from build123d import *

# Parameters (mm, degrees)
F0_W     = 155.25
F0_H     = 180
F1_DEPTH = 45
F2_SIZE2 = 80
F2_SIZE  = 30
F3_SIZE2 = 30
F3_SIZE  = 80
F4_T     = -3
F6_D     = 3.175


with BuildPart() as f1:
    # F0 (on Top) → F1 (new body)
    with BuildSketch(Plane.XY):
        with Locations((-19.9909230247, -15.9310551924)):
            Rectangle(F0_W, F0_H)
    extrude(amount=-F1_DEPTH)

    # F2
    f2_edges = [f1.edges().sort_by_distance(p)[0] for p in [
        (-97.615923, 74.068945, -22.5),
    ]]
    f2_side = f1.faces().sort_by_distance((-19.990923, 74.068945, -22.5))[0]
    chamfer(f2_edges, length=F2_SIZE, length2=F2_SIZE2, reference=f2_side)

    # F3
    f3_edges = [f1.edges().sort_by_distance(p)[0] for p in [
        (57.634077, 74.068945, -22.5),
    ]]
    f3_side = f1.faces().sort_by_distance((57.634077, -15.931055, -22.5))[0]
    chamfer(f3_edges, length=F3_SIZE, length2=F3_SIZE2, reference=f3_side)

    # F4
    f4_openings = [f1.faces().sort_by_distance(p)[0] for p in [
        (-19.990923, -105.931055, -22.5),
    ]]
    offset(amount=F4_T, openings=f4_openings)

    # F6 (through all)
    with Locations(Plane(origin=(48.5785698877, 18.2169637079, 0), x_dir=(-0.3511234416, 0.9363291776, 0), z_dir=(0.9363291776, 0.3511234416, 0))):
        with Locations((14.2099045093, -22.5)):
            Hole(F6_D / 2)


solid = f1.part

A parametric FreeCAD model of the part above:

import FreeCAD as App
import Part
import Sketcher
from FreeCAD import Vector


def edges_at(feature, points):
    """Names of the edges that pass closest to the given points."""
    edges = feature.Shape.Edges
    near = lambda p: min(range(len(edges)), key=lambda i: edges[i].distToShape(Part.Vertex(*p))[0])
    return sorted({f"Edge{near(p) + 1}" for p in points})


def faces_at(feature, points):
    """Names of the faces that lie closest to the given points."""
    faces = feature.Shape.Faces
    near = lambda p: min(range(len(faces)), key=lambda i: faces[i].distToShape(Part.Vertex(*p))[0])
    return sorted({f"Face{near(p) + 1}" for p in points})

doc = App.newDocument("Part")
body = doc.addObject("PartDesign::Body", "Body")

# Sketch on XY plane
sketch1 = doc.addObject("Sketcher::SketchObject", "Sketch")
body.addObject(sketch1)
sketch1.AttachmentSupport = (doc.XY_Plane, [""])
sketch1.MapMode = "FlatFace"
sketch1.addGeometry(Part.LineSegment(Vector(-98, 74, 0), Vector(-98, -106, 0)), False)
sketch1.addGeometry(Part.LineSegment(Vector(-98, -106, 0), Vector(58, -106, 0)), False)
sketch1.addGeometry(Part.LineSegment(Vector(58, -106, 0), Vector(58, 74, 0)), False)
sketch1.addGeometry(Part.LineSegment(Vector(58, 74, 0), Vector(-98, 74, 0)), False)
sketch1.addConstraint(Sketcher.Constraint("Coincident", 0, 2, 1, 1))
sketch1.addConstraint(Sketcher.Constraint("Coincident", 1, 2, 2, 1))
sketch1.addConstraint(Sketcher.Constraint("Coincident", 2, 2, 3, 1))
sketch1.addConstraint(Sketcher.Constraint("Coincident", 3, 2, 0, 1))
sketch1.addConstraint(Sketcher.Constraint("Vertical", 0))
sketch1.addConstraint(Sketcher.Constraint("Horizontal", 1))
sketch1.addConstraint(Sketcher.Constraint("Vertical", 2))
sketch1.addConstraint(Sketcher.Constraint("Horizontal", 3))
sketch1.addConstraint(Sketcher.Constraint("DistanceY", 0, 2, 0, 1, 180.0))
sketch1.addConstraint(Sketcher.Constraint("DistanceX", 1, 1, 1, 2, 155.25))
sketch1.addConstraint(Sketcher.Constraint("DistanceX", 0, 2, -1, 1, 97.615923))
sketch1.addConstraint(Sketcher.Constraint("DistanceY", 0, 2, -1, 1, 105.931055))
pad1 = doc.addObject("PartDesign::Pad", "Pad")
body.addObject(pad1)
pad1.Profile = sketch1
pad1.Length = 45
pad1.Reversed = True
doc.recompute()

chamfer = doc.addObject("PartDesign::Chamfer", "Chamfer")
body.addObject(chamfer)
chamfer.Base = (pad1, edges_at(pad1, [(-97.616, 74.069, -22.5)]))
chamfer.ChamferType = "Two distances"
chamfer.Size = 30
chamfer.Size2 = 80
chamfer.FlipDirection = True
doc.recompute()

chamfer2 = doc.addObject("PartDesign::Chamfer", "Chamfer001")
body.addObject(chamfer2)
chamfer2.Base = (chamfer, edges_at(chamfer, [(57.634, 74.069, -22.5)]))
chamfer2.ChamferType = "Two distances"
chamfer2.Size = 80
chamfer2.Size2 = 30
chamfer2.FlipDirection = True
doc.recompute()

thickness = doc.addObject("PartDesign::Thickness", "Thickness")
body.addObject(thickness)
thickness.Base = (chamfer2, faces_at(chamfer2, [(-19.991, -105.931, -22.5)]))
thickness.Value = 3
thickness.Reversed = True
thickness.Join = "Arc"

# Sketch on an angled plane
sketch2 = doc.addObject("Sketcher::SketchObject", "Sketch001")
body.addObject(sketch2)
sketch2.Placement = App.Placement(Vector(48.57857, 18.216964, 0), App.Rotation(Vector(-0.351123442, 0.936329178, 0), Vector(0, 0, 1.000000001), Vector(0.936329178, 0.351123442, 0), "ZXY"))
sketch2.addGeometry(Part.Circle(Vector(14.2, -22.5, 0), Vector(0, 0, 1), 1.6), False)
sketch2.addConstraint(Sketcher.Constraint("Diameter", 0, 3.175))
sketch2.addConstraint(Sketcher.Constraint("DistanceY", 0, 3, -1, 1, 22.5))
sketch2.addConstraint(Sketcher.Constraint("DistanceX", -1, 1, 0, 3, 14.209905))
doc.recompute()
hole = doc.addObject("PartDesign::Hole", "Hole")
body.addObject(hole)
hole.Profile = sketch2
hole.ThreadType = "None"
hole.Diameter = 3.175
hole.DepthType = "ThroughAll"

doc.recompute()
